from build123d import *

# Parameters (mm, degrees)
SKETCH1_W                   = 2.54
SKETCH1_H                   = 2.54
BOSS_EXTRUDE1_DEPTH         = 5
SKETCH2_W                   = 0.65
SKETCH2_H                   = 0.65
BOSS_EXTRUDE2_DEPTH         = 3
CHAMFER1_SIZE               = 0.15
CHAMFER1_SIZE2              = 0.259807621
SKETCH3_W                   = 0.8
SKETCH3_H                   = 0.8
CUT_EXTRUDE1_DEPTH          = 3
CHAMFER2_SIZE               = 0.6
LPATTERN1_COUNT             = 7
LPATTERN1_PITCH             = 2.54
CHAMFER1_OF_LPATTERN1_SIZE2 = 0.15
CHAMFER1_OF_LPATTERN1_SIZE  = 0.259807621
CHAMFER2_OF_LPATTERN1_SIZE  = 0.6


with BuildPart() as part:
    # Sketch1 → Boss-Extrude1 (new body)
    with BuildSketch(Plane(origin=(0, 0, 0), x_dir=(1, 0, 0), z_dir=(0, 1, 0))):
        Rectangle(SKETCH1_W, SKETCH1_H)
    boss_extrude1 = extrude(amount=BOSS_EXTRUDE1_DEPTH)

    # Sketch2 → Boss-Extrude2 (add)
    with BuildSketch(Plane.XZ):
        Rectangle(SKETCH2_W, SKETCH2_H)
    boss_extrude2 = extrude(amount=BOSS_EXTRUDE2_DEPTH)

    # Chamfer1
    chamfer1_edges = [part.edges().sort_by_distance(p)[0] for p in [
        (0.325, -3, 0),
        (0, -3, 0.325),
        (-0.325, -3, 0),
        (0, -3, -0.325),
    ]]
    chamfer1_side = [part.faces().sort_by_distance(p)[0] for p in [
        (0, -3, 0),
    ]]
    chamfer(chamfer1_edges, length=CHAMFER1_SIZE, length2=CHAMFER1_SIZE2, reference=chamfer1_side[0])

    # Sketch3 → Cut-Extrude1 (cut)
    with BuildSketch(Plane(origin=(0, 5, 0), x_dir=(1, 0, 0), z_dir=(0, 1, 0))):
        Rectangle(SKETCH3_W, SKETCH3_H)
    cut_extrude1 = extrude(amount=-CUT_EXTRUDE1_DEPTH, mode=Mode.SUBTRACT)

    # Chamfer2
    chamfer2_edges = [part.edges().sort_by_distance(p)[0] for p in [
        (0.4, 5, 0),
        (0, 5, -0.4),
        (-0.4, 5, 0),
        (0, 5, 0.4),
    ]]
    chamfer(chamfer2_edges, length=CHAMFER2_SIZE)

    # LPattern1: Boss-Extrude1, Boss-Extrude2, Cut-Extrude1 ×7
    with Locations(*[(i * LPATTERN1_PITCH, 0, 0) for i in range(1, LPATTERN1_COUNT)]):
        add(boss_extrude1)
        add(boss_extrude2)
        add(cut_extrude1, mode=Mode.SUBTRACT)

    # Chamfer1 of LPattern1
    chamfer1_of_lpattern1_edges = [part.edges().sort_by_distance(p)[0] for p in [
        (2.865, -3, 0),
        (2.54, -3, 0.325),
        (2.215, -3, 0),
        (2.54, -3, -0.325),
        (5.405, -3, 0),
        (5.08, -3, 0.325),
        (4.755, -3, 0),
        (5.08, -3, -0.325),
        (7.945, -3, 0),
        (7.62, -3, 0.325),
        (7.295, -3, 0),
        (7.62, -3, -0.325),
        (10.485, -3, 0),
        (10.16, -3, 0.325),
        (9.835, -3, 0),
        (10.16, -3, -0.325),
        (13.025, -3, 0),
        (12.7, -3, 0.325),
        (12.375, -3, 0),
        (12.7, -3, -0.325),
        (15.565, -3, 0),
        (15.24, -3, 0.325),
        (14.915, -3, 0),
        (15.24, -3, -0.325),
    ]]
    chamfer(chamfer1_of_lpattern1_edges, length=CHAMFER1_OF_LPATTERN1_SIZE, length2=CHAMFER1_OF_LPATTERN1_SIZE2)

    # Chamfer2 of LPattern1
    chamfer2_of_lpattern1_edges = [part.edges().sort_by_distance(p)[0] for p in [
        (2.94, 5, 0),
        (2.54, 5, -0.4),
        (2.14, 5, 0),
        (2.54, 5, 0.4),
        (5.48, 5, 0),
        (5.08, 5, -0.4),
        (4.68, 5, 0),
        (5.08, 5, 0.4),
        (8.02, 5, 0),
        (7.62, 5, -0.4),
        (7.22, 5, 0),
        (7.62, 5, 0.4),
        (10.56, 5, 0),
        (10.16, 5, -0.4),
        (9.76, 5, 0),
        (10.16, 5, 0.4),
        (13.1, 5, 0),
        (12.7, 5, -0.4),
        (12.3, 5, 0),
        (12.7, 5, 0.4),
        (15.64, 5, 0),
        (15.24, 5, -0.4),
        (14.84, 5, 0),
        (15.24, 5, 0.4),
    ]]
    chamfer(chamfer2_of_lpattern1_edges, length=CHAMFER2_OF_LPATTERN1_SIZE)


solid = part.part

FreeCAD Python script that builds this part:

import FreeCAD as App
import Part
import Sketcher
from FreeCAD import Vector


def edges_at(feature, points):
    """Names of the edges that pass closest to the given points."""
    edges = feature.Shape.Edges
    near = lambda p: min(range(len(edges)), key=lambda i: edges[i].distToShape(Part.Vertex(*p))[0])
    return sorted({f"Edge{near(p) + 1}" for p in points})


def add_polygon(sketch, points):
    """Adds a closed chain of lines whose ends are joined by coincident constraints."""
    first, n = sketch.GeometryCount, len(points)
    for a, b in zip(points, points[1:] + points[:1]):
        sketch.addGeometry(Part.LineSegment(App.Vector(*a, 0), App.Vector(*b, 0)), False)
    for i in range(n):
        sketch.addConstraint(Sketcher.Constraint("Coincident", first + i, 2, first + (i + 1) % n, 1))

doc = App.newDocument("Part")
body = doc.addObject("PartDesign::Body", "Body")

# Sketch on XZ plane
sketch1 = doc.addObject("Sketcher::SketchObject", "Sketch")
body.addObject(sketch1)
sketch1.AttachmentSupport = (doc.XZ_Plane, [""])
sketch1.MapMode = "FlatFace"
add_polygon(sketch1, [(-1.3, -1.3), (-1.3, 1.3), (1.3, 1.3), (1.3, -1.3)])  # lines 0-3
sketch1.addConstraint(Sketcher.Constraint("Vertical", 0))
sketch1.addConstraint(Sketcher.Constraint("Horizontal", 1))
sketch1.addConstraint(Sketcher.Constraint("Vertical", 2))
sketch1.addConstraint(Sketcher.Constraint("Horizontal", 3))
sketch1.addConstraint(Sketcher.Constraint("Symmetric", 0, 2, 2, 2, -1, 1))
sketch1.addConstraint(Sketcher.Constraint("Equal", 3, 0))
sketch1.addConstraint(Sketcher.Constraint("DistanceX", 1, 1, 1, 2, 2.54))
pad1 = doc.addObject("PartDesign::Pad", "Pad")
body.addObject(pad1)
pad1.Profile = sketch1
pad1.Length = 5
pad1.Reversed = True

# Sketch on XZ plane
sketch2 = doc.addObject("Sketcher::SketchObject", "Sketch001")
body.addObject(sketch2)
sketch2.AttachmentSupport = (doc.XZ_Plane, [""])
sketch2.MapMode = "FlatFace"
add_polygon(sketch2, [(-0.3, 0.3), (-0.3, -0.3), (0.3, -0.3), (0.3, 0.3)])  # lines 0-3
sketch2.addConstraint(Sketcher.Constraint("Vertical", 0))
sketch2.addConstraint(Sketcher.Constraint("Horizontal", 1))
sketch2.addConstraint(Sketcher.Constraint("Vertical", 2))
sketch2.addConstraint(Sketcher.Constraint("Horizontal", 3))
sketch2.addConstraint(Sketcher.Constraint("Symmetric", 0, 2, 2, 2, -1, 1))
sketch2.addConstraint(Sketcher.Constraint("Equal", 3, 0))
sketch2.addConstraint(Sketcher.Constraint("DistanceX", 1, 1, 1, 2, 0.65))
pad2 = doc.addObject("PartDesign::Pad", "Pad001")
body.addObject(pad2)
pad2.Profile = sketch2
pad2.Length = 3
doc.recompute()

chamfer = doc.addObject("PartDesign::Chamfer", "Chamfer")
body.addObject(chamfer)
chamfer.Base = (pad2, edges_at(pad2, [
    (0.325, -3, 0),
    (0, -3, 0.325),
    (-0.325, -3, 0),
    (0, -3, -0.325),
]))
chamfer.ChamferType = "Two distances"
chamfer.Size = 0.15
chamfer.Size2 = 0.259808
chamfer.FlipDirection = True

# Sketch on XZ plane
sketch3 = doc.addObject("Sketcher::SketchObject", "Sketch002")
body.addObject(sketch3)
sketch3.AttachmentSupport = (doc.XZ_Plane, [""])
sketch3.MapMode = "FlatFace"
sketch3.AttachmentOffset = App.Placement(Vector(0, 0, -5), App.Rotation())
add_polygon(sketch3, [(-0.4, -0.4), (-0.4, 0.4), (0.4, 0.4), (0.4, -0.4)])  # lines 0-3
sketch3.addConstraint(Sketcher.Constraint("Vertical", 0))
sketch3.addConstraint(Sketcher.Constraint("Horizontal", 1))
sketch3.addConstraint(Sketcher.Constraint("Vertical", 2))
sketch3.addConstraint(Sketcher.Constraint("Horizontal", 3))
sketch3.addConstraint(Sketcher.Constraint("Symmetric", 0, 2, 2, 2, -1, 1))
sketch3.addConstraint(Sketcher.Constraint("Equal", 3, 0))
sketch3.addConstraint(Sketcher.Constraint("DistanceX", 1, 1, 1, 2, 0.8))
pocket1 = doc.addObject("PartDesign::Pocket", "Pocket")
body.addObject(pocket1)
pocket1.Profile = sketch3
pocket1.Length = 3
pocket1.Reversed = True
doc.recompute()

chamfer2 = doc.addObject("PartDesign::Chamfer", "Chamfer001")
body.addObject(chamfer2)
chamfer2.Base = (pocket1, edges_at(pocket1, [
    (0.4, 5, 0),
    (0, 5, -0.4),
    (-0.4, 5, 0),
    (0, 5, 0.4),
]))
chamfer2.Size = 0.6
doc.recompute()

linearpattern = doc.addObject("PartDesign::LinearPattern", "LinearPattern")
body.addObject(linearpattern)
linearpattern.Originals = [pad1, pad2, pocket1]
linearpattern.Direction = (doc.X_Axis, [""])
linearpattern.Mode = "offset"
linearpattern.Offset = 2.54
linearpattern.Occurrences = 7
body.Tip = linearpattern
doc.recompute()

chamfer3 = doc.addObject("PartDesign::Chamfer", "Chamfer002")
body.addObject(chamfer3)
chamfer3.Base = (linearpattern, edges_at(linearpattern, [
    (2.865, -3, 0),
    (2.54, -3, 0.325),
    (2.215, -3, 0),
    (2.54, -3, -0.325),
    (5.405, -3, 0),
    (5.08, -3, 0.325),
    (4.755, -3, 0),
    (5.08, -3, -0.325),
    (7.945, -3, 0),
    (7.62, -3, 0.325),
    (7.295, -3, 0),
    (7.62, -3, -0.325),
    (10.485, -3, 0),
    (10.16, -3, 0.325),
    (9.835, -3, 0),
    (10.16, -3, -0.325),
    (13.025, -3, 0),
    (12.7, -3, 0.325),
    (12.375, -3, 0),
    (12.7, -3, -0.325),
    (15.565, -3, 0),
    (15.24, -3, 0.325),
    (14.915, -3, 0),
    (15.24, -3, -0.325),
]))
chamfer3.ChamferType = "Two distances"
chamfer3.Size = 0.259808
chamfer3.Size2 = 0.15
doc.recompute()

chamfer4 = doc.addObject("PartDesign::Chamfer", "Chamfer003")
body.addObject(chamfer4)
chamfer4.Base = (chamfer3, edges_at(chamfer3, [
    (2.94, 5, 0),
    (2.54, 5, -0.4),
    (2.14, 5, 0),
    (2.54, 5, 0.4),
    (5.48, 5, 0),
    (5.08, 5, -0.4),
    (4.68, 5, 0),
    (5.08, 5, 0.4),
    (8.02, 5, 0),
    (7.62, 5, -0.4),
    (7.22, 5, 0),
    (7.62, 5, 0.4),
    (10.56, 5, 0),
    (10.16, 5, -0.4),
    (9.76, 5, 0),
    (10.16, 5, 0.4),
    (13.1, 5, 0),
    (12.7, 5, -0.4),
    (12.3, 5, 0),
    (12.7, 5, 0.4),
    (15.64, 5, 0),
    (15.24, 5, -0.4),
    (14.84, 5, 0),
    (15.24, 5, 0.4),
]))
chamfer4.Size = 0.6

doc.recompute()
